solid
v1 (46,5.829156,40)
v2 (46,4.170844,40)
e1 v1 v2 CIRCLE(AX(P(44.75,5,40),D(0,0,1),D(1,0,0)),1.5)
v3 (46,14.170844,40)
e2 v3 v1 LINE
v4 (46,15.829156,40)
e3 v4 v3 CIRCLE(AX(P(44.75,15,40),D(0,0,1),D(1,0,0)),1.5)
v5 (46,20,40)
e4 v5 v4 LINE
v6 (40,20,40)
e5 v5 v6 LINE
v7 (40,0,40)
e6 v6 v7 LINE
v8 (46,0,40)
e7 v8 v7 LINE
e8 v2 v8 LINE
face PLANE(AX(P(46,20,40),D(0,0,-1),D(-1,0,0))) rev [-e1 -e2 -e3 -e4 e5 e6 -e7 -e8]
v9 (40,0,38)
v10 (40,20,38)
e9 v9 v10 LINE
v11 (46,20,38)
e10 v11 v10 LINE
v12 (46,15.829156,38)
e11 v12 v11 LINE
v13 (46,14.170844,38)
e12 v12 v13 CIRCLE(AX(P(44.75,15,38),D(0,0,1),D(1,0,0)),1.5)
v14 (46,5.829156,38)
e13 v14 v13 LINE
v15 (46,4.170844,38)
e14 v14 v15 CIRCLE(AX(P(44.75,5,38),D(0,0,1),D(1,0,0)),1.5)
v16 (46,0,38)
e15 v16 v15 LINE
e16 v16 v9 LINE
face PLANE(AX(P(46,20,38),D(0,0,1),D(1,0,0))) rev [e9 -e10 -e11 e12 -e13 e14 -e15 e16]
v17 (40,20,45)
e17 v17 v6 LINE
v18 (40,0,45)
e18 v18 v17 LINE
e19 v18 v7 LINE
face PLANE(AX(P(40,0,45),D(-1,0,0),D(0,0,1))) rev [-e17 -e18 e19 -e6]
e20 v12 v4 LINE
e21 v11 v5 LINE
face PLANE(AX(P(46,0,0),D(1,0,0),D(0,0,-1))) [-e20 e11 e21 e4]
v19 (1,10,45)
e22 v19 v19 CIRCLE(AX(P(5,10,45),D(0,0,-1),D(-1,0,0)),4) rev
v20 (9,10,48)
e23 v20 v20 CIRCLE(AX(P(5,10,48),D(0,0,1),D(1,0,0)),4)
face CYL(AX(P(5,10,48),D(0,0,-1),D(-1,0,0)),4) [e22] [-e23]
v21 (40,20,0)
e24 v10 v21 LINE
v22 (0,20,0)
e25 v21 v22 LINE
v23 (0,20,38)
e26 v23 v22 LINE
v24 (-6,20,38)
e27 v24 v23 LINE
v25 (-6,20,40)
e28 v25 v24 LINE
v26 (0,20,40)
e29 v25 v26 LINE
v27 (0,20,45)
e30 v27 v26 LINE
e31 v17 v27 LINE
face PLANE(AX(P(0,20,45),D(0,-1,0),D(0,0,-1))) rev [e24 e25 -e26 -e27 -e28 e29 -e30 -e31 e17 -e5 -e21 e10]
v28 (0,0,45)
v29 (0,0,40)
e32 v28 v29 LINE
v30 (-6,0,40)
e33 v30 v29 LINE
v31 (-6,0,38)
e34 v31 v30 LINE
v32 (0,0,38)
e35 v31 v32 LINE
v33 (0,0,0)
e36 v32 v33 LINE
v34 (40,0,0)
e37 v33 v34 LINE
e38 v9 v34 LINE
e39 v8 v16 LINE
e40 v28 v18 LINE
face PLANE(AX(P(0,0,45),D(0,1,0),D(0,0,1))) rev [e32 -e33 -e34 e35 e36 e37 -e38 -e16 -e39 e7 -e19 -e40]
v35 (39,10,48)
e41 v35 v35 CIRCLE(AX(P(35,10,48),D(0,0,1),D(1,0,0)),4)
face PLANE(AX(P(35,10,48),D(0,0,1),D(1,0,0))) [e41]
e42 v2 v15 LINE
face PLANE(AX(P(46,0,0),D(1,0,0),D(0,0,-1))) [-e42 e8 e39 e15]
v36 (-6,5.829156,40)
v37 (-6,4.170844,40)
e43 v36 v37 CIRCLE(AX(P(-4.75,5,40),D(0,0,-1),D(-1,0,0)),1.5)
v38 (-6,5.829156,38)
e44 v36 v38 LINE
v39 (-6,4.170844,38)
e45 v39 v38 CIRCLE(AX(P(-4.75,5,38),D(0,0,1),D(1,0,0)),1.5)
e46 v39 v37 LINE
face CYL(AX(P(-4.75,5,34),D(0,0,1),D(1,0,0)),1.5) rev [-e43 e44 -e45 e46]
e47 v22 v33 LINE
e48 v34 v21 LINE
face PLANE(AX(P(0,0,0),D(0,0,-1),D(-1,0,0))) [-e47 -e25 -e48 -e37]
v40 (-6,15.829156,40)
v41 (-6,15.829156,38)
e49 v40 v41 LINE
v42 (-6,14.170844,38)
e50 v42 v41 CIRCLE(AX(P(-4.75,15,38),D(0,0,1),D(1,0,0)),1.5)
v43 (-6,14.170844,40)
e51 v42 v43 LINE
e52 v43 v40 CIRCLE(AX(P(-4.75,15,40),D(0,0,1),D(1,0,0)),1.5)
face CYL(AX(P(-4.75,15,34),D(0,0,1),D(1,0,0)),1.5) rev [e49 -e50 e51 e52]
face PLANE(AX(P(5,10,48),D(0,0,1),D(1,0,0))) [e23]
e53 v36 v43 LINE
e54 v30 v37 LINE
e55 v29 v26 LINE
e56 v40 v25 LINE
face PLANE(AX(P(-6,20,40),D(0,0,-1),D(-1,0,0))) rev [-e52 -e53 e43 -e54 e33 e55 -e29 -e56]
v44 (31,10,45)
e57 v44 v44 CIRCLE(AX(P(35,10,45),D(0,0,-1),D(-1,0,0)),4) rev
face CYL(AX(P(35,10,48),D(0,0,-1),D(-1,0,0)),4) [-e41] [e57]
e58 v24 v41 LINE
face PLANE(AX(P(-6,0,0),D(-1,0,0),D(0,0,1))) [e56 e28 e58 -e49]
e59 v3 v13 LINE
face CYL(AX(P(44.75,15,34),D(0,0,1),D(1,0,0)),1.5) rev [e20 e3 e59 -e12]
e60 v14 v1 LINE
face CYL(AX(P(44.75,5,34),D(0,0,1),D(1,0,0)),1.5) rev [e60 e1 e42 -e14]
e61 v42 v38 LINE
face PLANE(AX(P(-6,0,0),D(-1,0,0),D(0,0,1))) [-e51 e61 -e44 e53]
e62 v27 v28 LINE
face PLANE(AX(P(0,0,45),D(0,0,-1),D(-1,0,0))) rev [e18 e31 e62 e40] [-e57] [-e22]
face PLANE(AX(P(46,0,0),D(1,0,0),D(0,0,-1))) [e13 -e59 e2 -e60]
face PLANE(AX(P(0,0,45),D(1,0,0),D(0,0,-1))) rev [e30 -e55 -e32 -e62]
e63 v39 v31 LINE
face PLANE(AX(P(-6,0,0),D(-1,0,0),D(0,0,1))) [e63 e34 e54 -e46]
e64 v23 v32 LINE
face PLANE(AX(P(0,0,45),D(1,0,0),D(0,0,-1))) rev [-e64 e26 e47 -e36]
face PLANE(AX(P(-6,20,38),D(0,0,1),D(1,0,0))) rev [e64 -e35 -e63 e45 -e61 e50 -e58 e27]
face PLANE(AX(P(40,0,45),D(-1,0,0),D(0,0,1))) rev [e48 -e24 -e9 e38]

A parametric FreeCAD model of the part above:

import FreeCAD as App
import Part
import Sketcher
from FreeCAD import Vector
Q = App.Units.Quantity

doc = App.newDocument("Part")
body = doc.addObject("PartDesign::Body", "Body")

# Sketch on XY plane
sketch1 = body.newObject("Sketcher::SketchObject", "Sketch")
sketch1.AttachmentSupport = (doc.getObject("XY_Plane"), [""])
sketch1.MapMode = "FlatFace"
sketch1.addGeometry([
    Part.LineSegment(Vector(0, 20, 0), Vector(0, 0, 0)),
    Part.LineSegment(Vector(0, 0, 0), Vector(40, 0, 0)),
    Part.LineSegment(Vector(40, 0, 0), Vector(40, 20, 0)),
    Part.LineSegment(Vector(40, 20, 0), Vector(0, 20, 0)),
], False)
sketch1.addConstraint([
    Sketcher.Constraint("Coincident", 0, 2, 1, 1),
    Sketcher.Constraint("Coincident", 1, 2, 2, 1),
    Sketcher.Constraint("Coincident", 2, 2, 3, 1),
    Sketcher.Constraint("Coincident", 3, 2, 0, 1),
    Sketcher.Constraint("Vertical", 0),
    Sketcher.Constraint("Horizontal", 1),
    Sketcher.Constraint("Vertical", 2),
    Sketcher.Constraint("Horizontal", 3),
    Sketcher.Constraint("Coincident", 0, 2, -1, 1),
    Sketcher.Constraint("DistanceX", 1, 1, 1, 2, Q("40 mm")),
    Sketcher.Constraint("DistanceY", 0, 2, 0, 1, Q("20 mm")),
])
pad1 = body.newObject("PartDesign::Pad", "Pad")
pad1.Profile = sketch1
pad1.Length = 45

# Sketch on XY plane
sketch2 = body.newObject("Sketcher::SketchObject", "Sketch001")
sketch2.AttachmentSupport = (doc.getObject("XY_Plane"), [""])
sketch2.MapMode = "FlatFace"
sketch2.AttachmentOffset = App.Placement(Vector(0, 0, 45), App.Rotation())
sketch2.addGeometry([
    Part.Circle(Vector(5, 10, 0), Vector(0, 0, 1), 4),
    Part.Circle(Vector(35, 10, 0), Vector(0, 0, 1), 4),
], False)
sketch2.addConstraint([
    Sketcher.Constraint("Equal", 0, 1),
    Sketcher.Constraint("Horizontal", 0, 3, 1, 3),
    Sketcher.Constraint("Diameter", 0, Q("8 mm")),
    Sketcher.Constraint("DistanceX", -1, 1, 0, 3, Q("5 mm")),
    Sketcher.Constraint("DistanceY", -1, 1, 0, 3, Q("10 mm")),
    Sketcher.Constraint("DistanceX", -1, 1, 1, 3, Q("35 mm")),
])
pad2 = body.newObject("PartDesign::Pad", "Pad001")
pad2.Profile = sketch2
pad2.Length = 3

# Sketch on YZ plane
sketch3 = body.newObject("Sketcher::SketchObject", "Sketch002")
sketch3.AttachmentSupport = (doc.getObject("YZ_Plane"), [""])
sketch3.MapMode = "FlatFace"
sketch3.addGeometry([
    Part.LineSegment(Vector(20, 38, 0), Vector(0, 38, 0)),
    Part.LineSegment(Vector(0, 38, 0), Vector(0, 40, 0)),
    Part.LineSegment(Vector(0, 40, 0), Vector(20, 40, 0)),
    Part.LineSegment(Vector(20, 40, 0), Vector(20, 38, 0)),
], False)
sketch3.addConstraint([
    Sketcher.Constraint("Coincident", 0, 2, 1, 1),
    Sketcher.Constraint("Coincident", 1, 2, 2, 1),
    Sketcher.Constraint("Coincident", 2, 2, 3, 1),
    Sketcher.Constraint("Coincident", 3, 2, 0, 1),
    Sketcher.Constraint("Horizontal", 0),
    Sketcher.Constraint("Vertical", 1),
    Sketcher.Constraint("Horizontal", 2),
    Sketcher.Constraint("Vertical", 3),
    Sketcher.Constraint("PointOnObject", 0, 2, -2),
    Sketcher.Constraint("DistanceX", 0, 2, 0, 1, Q("20 mm")),
    Sketcher.Constraint("DistanceY", 1, 1, 1, 2, Q("2 mm")),
    Sketcher.Constraint("DistanceY", -1, 1, 0, 2, Q("38 mm")),
])
pad3 = body.newObject("PartDesign::Pad", "Pad002")
pad3.Profile = sketch3
pad3.Length = 6
pad3.Reversed = True

# Sketch on YZ plane
sketch4 = body.newObject("Sketcher::SketchObject", "Sketch003")
sketch4.AttachmentSupport = (doc.getObject("YZ_Plane"), [""])
sketch4.MapMode = "FlatFace"
sketch4.AttachmentOffset = App.Placement(Vector(0, 0, 40), App.Rotation())
sketch4.addGeometry([
    Part.LineSegment(Vector(20, 40, 0), Vector(0, 40, 0)),
    Part.LineSegment(Vector(0, 40, 0), Vector(0, 38, 0)),
    Part.LineSegment(Vector(0, 38, 0), Vector(20, 38, 0)),
    Part.LineSegment(Vector(20, 38, 0), Vector(20, 40, 0)),
], False)
sketch4.addConstraint([
    Sketcher.Constraint("Coincident", 0, 2, 1, 1),
    Sketcher.Constraint("Coincident", 1, 2, 2, 1),
    Sketcher.Constraint("Coincident", 2, 2, 3, 1),
    Sketcher.Constraint("Coincident", 3, 2, 0, 1),
    Sketcher.Constraint("Horizontal", 0),
    Sketcher.Constraint("Vertical", 1),
    Sketcher.Constraint("Horizontal", 2),
    Sketcher.Constraint("Vertical", 3),
    Sketcher.Constraint("PointOnObject", 0, 2, -2),
    Sketcher.Constraint("DistanceX", 0, 2, 0, 1, Q("20 mm")),
    Sketcher.Constraint("DistanceY", 1, 2, 1, 1, Q("2 mm")),
    Sketcher.Constraint("DistanceY", -1, 1, 0, 2, Q("40 mm")),
])
pad4 = body.newObject("PartDesign::Pad", "Pad003")
pad4.Profile = sketch4
pad4.Length = 6

# Sketch on XY plane
sketch5 = body.newObject("Sketcher::SketchObject", "Sketch004")
sketch5.AttachmentSupport = (doc.getObject("XY_Plane"), [""])
sketch5.MapMode = "FlatFace"
sketch5.AttachmentOffset = App.Placement(Vector(0, 0, 40), App.Rotation())
sketch5.addGeometry([
    Part.Circle(Vector(-4.8, 15, 0), Vector(0, 0, 1), 1.5),
    Part.Circle(Vector(-4.8, 5, 0), Vector(0, 0, 1), 1.5),
    Part.Circle(Vector(44.8, 15, 0), Vector(0, 0, 1), 1.5),
    Part.Circle(Vector(44.8, 5, 0), Vector(0, 0, 1), 1.5),
], False)
sketch5.addConstraint([
    Sketcher.Constraint("Equal", 0, 1),
    Sketcher.Constraint("Equal", 1, 2),
    Sketcher.Constraint("Equal", 2, 3),
    Sketcher.Constraint("Horizontal", 0, 3, 2, 3),
    Sketcher.Constraint("Horizontal", 1, 3, 3, 3),
    Sketcher.Constraint("Vertical", 0, 3, 1, 3),
    Sketcher.Constraint("Vertical", 2, 3, 3, 3),
    Sketcher.Constraint("Diameter", 0, Q("3 mm")),
    Sketcher.Constraint("DistanceY", -1, 1, 0, 3, Q("15 mm")),
    Sketcher.Constraint("DistanceY", -1, 1, 1, 3, Q("5 mm")),
    Sketcher.Constraint("DistanceX", 0, 3, 2, 3, Q("49.5 mm")),
    Sketcher.Constraint("DistanceX", 0, 3, -1, 1, Q("4.75 mm")),
])
pocket1 = body.newObject("PartDesign::Pocket", "Pocket")
pocket1.Profile = sketch5
pocket1.Length = 6

doc.recompute()
